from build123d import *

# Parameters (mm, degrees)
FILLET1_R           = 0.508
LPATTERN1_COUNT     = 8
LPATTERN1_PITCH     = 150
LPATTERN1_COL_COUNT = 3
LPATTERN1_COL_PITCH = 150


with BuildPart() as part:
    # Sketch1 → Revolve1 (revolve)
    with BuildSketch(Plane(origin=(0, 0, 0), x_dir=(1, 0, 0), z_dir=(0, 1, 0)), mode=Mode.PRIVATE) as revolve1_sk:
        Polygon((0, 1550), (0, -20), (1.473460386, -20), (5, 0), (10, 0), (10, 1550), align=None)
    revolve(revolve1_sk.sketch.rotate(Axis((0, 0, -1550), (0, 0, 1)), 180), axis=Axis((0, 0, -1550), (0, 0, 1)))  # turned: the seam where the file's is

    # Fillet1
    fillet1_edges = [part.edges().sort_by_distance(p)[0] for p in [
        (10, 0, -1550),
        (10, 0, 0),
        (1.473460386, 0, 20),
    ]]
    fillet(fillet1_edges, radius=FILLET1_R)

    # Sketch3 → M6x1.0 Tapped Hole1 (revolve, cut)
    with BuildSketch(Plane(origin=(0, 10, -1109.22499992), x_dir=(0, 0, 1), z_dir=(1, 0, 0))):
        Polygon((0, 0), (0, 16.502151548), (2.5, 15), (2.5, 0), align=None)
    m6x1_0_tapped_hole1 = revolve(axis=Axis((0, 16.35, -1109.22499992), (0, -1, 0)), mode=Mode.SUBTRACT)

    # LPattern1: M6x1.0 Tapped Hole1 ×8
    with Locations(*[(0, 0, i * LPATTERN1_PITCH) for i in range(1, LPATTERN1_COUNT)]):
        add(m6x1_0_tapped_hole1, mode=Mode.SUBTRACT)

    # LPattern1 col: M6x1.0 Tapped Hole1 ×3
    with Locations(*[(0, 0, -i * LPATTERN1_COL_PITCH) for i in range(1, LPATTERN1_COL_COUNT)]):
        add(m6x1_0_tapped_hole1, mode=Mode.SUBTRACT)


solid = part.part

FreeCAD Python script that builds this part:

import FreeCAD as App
import Part
import Sketcher
Q = App.Units.Quantity


def edges_at(feature, points):
    """Names of the edges that pass closest to the given points."""
    edges = feature.Shape.Edges
    near = lambda p: min(range(len(edges)), key=lambda i: edges[i].distToShape(Part.Vertex(*p))[0])
    return sorted({f"Edge{near(p) + 1}" for p in points})

doc = App.newDocument("Part")
body = doc.addObject("PartDesign::Body", "Body")

# Sketch on XZ plane
sketch1 = body.newObject("Sketcher::SketchObject", "Sketch")
sketch1.AttachmentSupport = (doc.getObject("XZ_Plane"), [""])
sketch1.MapMode = "FlatFace"
sketch1.addGeometry(Part.LineSegment(App.Vector(0, -1550, 0), App.Vector(0, 20, 0)), False)
sketch1.addGeometry(Part.LineSegment(App.Vector(0, 20, 0), App.Vector(1.47346, 20, 0)), False)
sketch1.addGeometry(Part.LineSegment(App.Vector(1.47346, 20, 0), App.Vector(5, 0, 0)), False)
sketch1.addGeometry(Part.LineSegment(App.Vector(5, 0, 0), App.Vector(10, 0, 0)), False)
sketch1.addGeometry(Part.LineSegment(App.Vector(10, 0, 0), App.Vector(10, -1550, 0)), False)
sketch1.addGeometry(Part.LineSegment(App.Vector(10, -1550, 0), App.Vector(0, -1550, 0)), False)
sketch1.addConstraint(Sketcher.Constraint("Coincident", 0, 2, 1, 1))
sketch1.addConstraint(Sketcher.Constraint("Coincident", 1, 2, 2, 1))
sketch1.addConstraint(Sketcher.Constraint("Coincident", 2, 2, 3, 1))
sketch1.addConstraint(Sketcher.Constraint("Coincident", 3, 2, 4, 1))
sketch1.addConstraint(Sketcher.Constraint("Coincident", 4, 2, 5, 1))
sketch1.addConstraint(Sketcher.Constraint("Coincident", 5, 2, 0, 1))
sketch1.addConstraint(Sketcher.Constraint("Vertical", 0))
sketch1.addConstraint(Sketcher.Constraint("Horizontal", 1))
sketch1.addConstraint(Sketcher.Constraint("Horizontal", 3))
sketch1.addConstraint(Sketcher.Constraint("Vertical", 4))
sketch1.addConstraint(Sketcher.Constraint("Horizontal", 5))
sketch1.addConstraint(Sketcher.Constraint("PointOnObject", 0, 2, -2))
sketch1.addConstraint(Sketcher.Constraint("PointOnObject", 2, 2, -1))
sketch1.addConstraint(Sketcher.Constraint("DistanceX", 3, 1, 3, 2, Q("5 mm")))
sketch1.addConstraint(Sketcher.Constraint("DistanceX", 5, 2, 5, 1, Q("10 mm")))
sketch1.addConstraint(Sketcher.Constraint("DistanceY", 0, 1, 0, 2, Q("1570 mm")))
sketch1.addConstraint(Sketcher.Constraint("DistanceY", 4, 2, 4, 1, Q("1550 mm")))
sketch1.addConstraint(Sketcher.Constraint("Angle", 2, Q("-80 deg")))
revolution = body.newObject("PartDesign::Revolution", "Revolution")
revolution.Profile = sketch1
revolution.ReferenceAxis = (sketch1, ["V_Axis"])
revolution.Angle = 360
doc.recompute()

fillet = body.newObject("PartDesign::Fillet", "Fillet")
fillet.Base = (revolution, edges_at(revolution, [(10, 0, -1550), (10, 0, 0), (1.473, 0, 20)]))
fillet.Radius = 0.508

# Sketch on YZ plane
sketch2 = body.newObject("Sketcher::SketchObject", "Sketch001")
sketch2.AttachmentSupport = (doc.getObject("YZ_Plane"), [""])
sketch2.MapMode = "FlatFace"
sketch2.addGeometry(Part.LineSegment(App.Vector(-6.502152, -1109.225, 0), App.Vector(10, -1109.225, 0)), False)
sketch2.addGeometry(Part.LineSegment(App.Vector(10, -1109.225, 0), App.Vector(10, -1106.725, 0)), False)
sketch2.addGeometry(Part.LineSegment(App.Vector(10, -1106.725, 0), App.Vector(-5, -1106.725, 0)), False)
sketch2.addGeometry(Part.LineSegment(App.Vector(-5, -1106.725, 0), App.Vector(-6.502152, -1109.225, 0)), False)
sketch2.addGeometry(Part.LineSegment(App.Vector(10, -1109.225, 0), App.Vector(-6.502152, -1109.225, 0)), True)  # axis
sketch2.addConstraint(Sketcher.Constraint("Coincident", 0, 2, 1, 1))
sketch2.addConstraint(Sketcher.Constraint("Coincident", 1, 2, 2, 1))
sketch2.addConstraint(Sketcher.Constraint("Coincident", 2, 2, 3, 1))
sketch2.addConstraint(Sketcher.Constraint("Coincident", 3, 2, 0, 1))
sketch2.addConstraint(Sketcher.Constraint("Horizontal", 0))
sketch2.addConstraint(Sketcher.Constraint("Vertical", 1))
sketch2.addConstraint(Sketcher.Constraint("Horizontal", 2))
sketch2.addConstraint(Sketcher.Constraint("Horizontal", 4))
sketch2.addConstraint(Sketcher.Constraint("Coincident", 4, 1, 0, 2))
sketch2.addConstraint(Sketcher.Constraint("Equal", 0, 4))
sketch2.addConstraint(Sketcher.Constraint("DistanceX", 2, 2, 2, 1, Q("15 mm")))
sketch2.addConstraint(Sketcher.Constraint("Angle", 3, Q("-121 deg")))
sketch2.addConstraint(Sketcher.Constraint("DistanceY", 1, 1, 1, 2, Q("2.5 mm")))
sketch2.addConstraint(Sketcher.Constraint("DistanceX", -1, 1, 0, 2, Q("10 mm")))
sketch2.addConstraint(Sketcher.Constraint("DistanceY", 0, 2, -1, 1, Q("1109.225 mm")))
groove = body.newObject("PartDesign::Groove", "Groove")
groove.Profile = sketch2
groove.ReferenceAxis = (sketch2, ["Axis0"])
groove.Angle = 360
doc.recompute()

linearpattern = body.newObject("PartDesign::LinearPattern", "LinearPattern")
linearpattern.Originals = [groove]
linearpattern.Direction = (doc.getObject("Z_Axis"), [""])
linearpattern.Mode = "offset"
linearpattern.Offset = 150
linearpattern.Occurrences = 8
body.Tip = linearpattern
doc.recompute()

linearpattern2 = body.newObject("PartDesign::LinearPattern", "LinearPattern001")
linearpattern2.Originals = [groove]
linearpattern2.Direction = (doc.getObject("Z_Axis"), [""])
linearpattern2.Mode = "offset"
linearpattern2.Offset = 150
linearpattern2.Occurrences = 3
linearpattern2.Reversed = True
body.Tip = linearpattern2

doc.recompute()
